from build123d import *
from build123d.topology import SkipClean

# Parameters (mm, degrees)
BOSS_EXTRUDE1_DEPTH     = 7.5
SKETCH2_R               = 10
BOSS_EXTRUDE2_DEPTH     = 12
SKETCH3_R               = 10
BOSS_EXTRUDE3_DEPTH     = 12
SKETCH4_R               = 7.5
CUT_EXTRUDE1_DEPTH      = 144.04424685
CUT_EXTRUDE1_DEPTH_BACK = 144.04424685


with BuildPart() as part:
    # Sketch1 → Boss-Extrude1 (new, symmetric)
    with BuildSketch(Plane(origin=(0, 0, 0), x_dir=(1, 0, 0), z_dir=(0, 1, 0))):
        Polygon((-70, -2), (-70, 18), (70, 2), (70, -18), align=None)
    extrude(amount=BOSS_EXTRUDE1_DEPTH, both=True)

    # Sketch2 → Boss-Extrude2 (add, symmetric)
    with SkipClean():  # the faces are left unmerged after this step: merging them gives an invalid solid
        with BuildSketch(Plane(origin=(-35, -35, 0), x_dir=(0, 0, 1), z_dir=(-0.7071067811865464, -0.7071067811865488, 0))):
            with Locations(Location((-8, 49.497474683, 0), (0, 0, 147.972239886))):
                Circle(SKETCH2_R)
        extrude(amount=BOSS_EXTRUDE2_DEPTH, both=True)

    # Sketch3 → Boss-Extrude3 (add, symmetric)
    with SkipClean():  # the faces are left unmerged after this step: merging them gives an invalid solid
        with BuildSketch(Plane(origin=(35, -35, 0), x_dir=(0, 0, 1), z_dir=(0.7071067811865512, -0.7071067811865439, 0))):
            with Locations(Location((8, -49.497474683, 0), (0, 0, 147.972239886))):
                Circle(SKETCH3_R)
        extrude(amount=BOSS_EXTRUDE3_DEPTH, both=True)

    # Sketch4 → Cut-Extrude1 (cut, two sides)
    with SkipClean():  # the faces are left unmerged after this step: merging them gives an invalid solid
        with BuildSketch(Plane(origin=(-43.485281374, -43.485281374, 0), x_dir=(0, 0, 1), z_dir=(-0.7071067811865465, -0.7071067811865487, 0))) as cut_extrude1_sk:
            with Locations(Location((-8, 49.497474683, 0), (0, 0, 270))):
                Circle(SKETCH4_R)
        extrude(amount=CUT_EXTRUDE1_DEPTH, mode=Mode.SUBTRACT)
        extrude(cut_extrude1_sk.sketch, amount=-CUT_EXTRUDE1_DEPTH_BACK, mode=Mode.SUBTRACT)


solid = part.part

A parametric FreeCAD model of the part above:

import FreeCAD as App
import Part
import Sketcher
Q = App.Units.Quantity

doc = App.newDocument("Part")
body = doc.addObject("PartDesign::Body", "Body")

sketch1 = body.newObject("Sketcher::SketchObject", "Sketch")
sketch1.AttachmentSupport = (doc.getObject("XZ_Plane"), [""])
sketch1.MapMode = "FlatFace"
sketch1.addGeometry([
    Part.LineSegment(App.Vector(-70, -18, 0), App.Vector(-70, 2, 0)),
    Part.LineSegment(App.Vector(-70, 2, 0), App.Vector(70, 18, 0)),
    Part.LineSegment(App.Vector(70, 18, 0), App.Vector(70, -2, 0)),
    Part.LineSegment(App.Vector(70, -2, 0), App.Vector(-70, -18, 0)),
], False)
sketch1.addConstraint([
    Sketcher.Constraint("Coincident", 0, 2, 1, 1),
    Sketcher.Constraint("Coincident", 1, 2, 2, 1),
    Sketcher.Constraint("Coincident", 2, 2, 3, 1),
    Sketcher.Constraint("Coincident", 3, 2, 0, 1),
    Sketcher.Constraint("Vertical", 0),
    Sketcher.Constraint("Vertical", 2),
    Sketcher.Constraint("Symmetric", 0, 2, 2, 2, -1, 1),
    Sketcher.Constraint("Parallel", 1, 3),
    Sketcher.Constraint("DistanceY", 0, 1, 0, 2, Q("20 mm")),
    Sketcher.Constraint("DistanceX", 0, 2, -1, 1, Q("70 mm")),
    Sketcher.Constraint("DistanceY", -1, 1, 0, 2, Q("2 mm")),
])
pad1 = body.newObject("PartDesign::Pad", "Pad")
pad1.Profile = sketch1
pad1.Length = 15
pad1.Midplane = True

sketch2 = body.newObject("Sketcher::SketchObject", "Sketch001")
sketch2.Placement = App.Placement(App.Vector(-35, -35, 0), App.Rotation(App.Vector(0, 0, 1), App.Vector(-0.707106781, 0.707106781, 0), App.Vector(-0.707106781, -0.707106781, 0), "ZXY"))
sketch2.addGeometry(Part.Circle(App.Vector(-8, 49, 0), App.Vector(0, 0, 1), 10), False)
sketch2.addConstraint([
    Sketcher.Constraint("Diameter", 0, Q("20 mm")),
    Sketcher.Constraint("DistanceX", 0, 3, -1, 1, Q("8 mm")),
    Sketcher.Constraint("DistanceY", -1, 1, 0, 3, Q("49.497475 mm")),
])
pad2 = body.newObject("PartDesign::Pad", "Pad001")
pad2.Profile = sketch2
pad2.Length = 24
pad2.Midplane = True

sketch3 = body.newObject("Sketcher::SketchObject", "Sketch002")
sketch3.Placement = App.Placement(App.Vector(35, -35, 0), App.Rotation(App.Vector(0, 0, 1), App.Vector(-0.707106781, -0.707106781, 0), App.Vector(0.707106781, -0.707106781, 0), "ZXY"))
sketch3.addGeometry(Part.Circle(App.Vector(8, -49, 0), App.Vector(0, 0, 1), 10), False)
sketch3.addConstraint([
    Sketcher.Constraint("Diameter", 0, Q("20 mm")),
    Sketcher.Constraint("DistanceX", -1, 1, 0, 3, Q("8 mm")),
    Sketcher.Constraint("DistanceY", 0, 3, -1, 1, Q("49.497475 mm")),
])
pad3 = body.newObject("PartDesign::Pad", "Pad002")
pad3.Profile = sketch3
pad3.Length = 24
pad3.Midplane = True

sketch4 = body.newObject("Sketcher::SketchObject", "Sketch003")
sketch4.Placement = App.Placement(App.Vector(-43.485281, -43.485281, 0), App.Rotation(App.Vector(0, 0, 1), App.Vector(-0.707106781, 0.707106781, 0), App.Vector(-0.707106781, -0.707106781, 0), "ZXY"))
sketch4.addGeometry(Part.Circle(App.Vector(-8, 49, 0), App.Vector(0, 0, 1), 8), False)
sketch4.addConstraint([
    Sketcher.Constraint("Diameter", 0, Q("15 mm")),
    Sketcher.Constraint("DistanceX", 0, 3, -1, 1, Q("8 mm")),
    Sketcher.Constraint("DistanceY", -1, 1, 0, 3, Q("49.497475 mm")),
])
pocket1 = body.newObject("PartDesign::Pocket", "Pocket")
pocket1.Profile = sketch4
pocket1.Type = "ThroughAll"
pocket1.Midplane = True

doc.recompute()
